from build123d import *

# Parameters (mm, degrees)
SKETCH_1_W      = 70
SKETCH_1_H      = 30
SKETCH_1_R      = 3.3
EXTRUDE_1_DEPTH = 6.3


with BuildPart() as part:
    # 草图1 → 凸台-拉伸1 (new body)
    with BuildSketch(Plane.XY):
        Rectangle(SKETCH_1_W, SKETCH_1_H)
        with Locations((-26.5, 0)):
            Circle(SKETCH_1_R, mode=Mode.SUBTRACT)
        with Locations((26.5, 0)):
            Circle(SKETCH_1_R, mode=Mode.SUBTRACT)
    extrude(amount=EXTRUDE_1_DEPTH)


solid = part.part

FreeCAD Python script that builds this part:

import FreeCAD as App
import Part
import Sketcher

V = App.Vector
Q = App.Units.Quantity

doc = App.newDocument("Part")
body = doc.addObject("PartDesign::Body", "Body")

sketch1 = body.newObject("Sketcher::SketchObject", "Sketch")
sketch1.AttachmentSupport = (doc.getObject("XY_Plane"), [""])
sketch1.MapMode = "FlatFace"
sketch1.addGeometry(Part.LineSegment(V(-35, 15, 0), V(-35, -15, 0)), False)
sketch1.addGeometry(Part.LineSegment(V(-35, -15, 0), V(35, -15, 0)), False)
sketch1.addGeometry(Part.LineSegment(V(35, -15, 0), V(35, 15, 0)), False)
sketch1.addGeometry(Part.LineSegment(V(35, 15, 0), V(-35, 15, 0)), False)
sketch1.addGeometry(Part.Circle(V(-26.5, 0, 0), V(0, 0, 1), 3.3), False)
sketch1.addGeometry(Part.Circle(V(26.5, 0, 0), V(0, 0, 1), 3.3), False)
sketch1.addConstraint(Sketcher.Constraint("Coincident", 0, 2, 1, 1))
sketch1.addConstraint(Sketcher.Constraint("Coincident", 1, 2, 2, 1))
sketch1.addConstraint(Sketcher.Constraint("Coincident", 2, 2, 3, 1))
sketch1.addConstraint(Sketcher.Constraint("Coincident", 3, 2, 0, 1))
sketch1.addConstraint(Sketcher.Constraint("Vertical", 0))
sketch1.addConstraint(Sketcher.Constraint("Horizontal", 1))
sketch1.addConstraint(Sketcher.Constraint("Vertical", 2))
sketch1.addConstraint(Sketcher.Constraint("Horizontal", 3))
sketch1.addConstraint(Sketcher.Constraint("Equal", 4, 5))
sketch1.addConstraint(Sketcher.Constraint("Symmetric", 4, 3, 5, 3, -1, 1))
sketch1.addConstraint(Sketcher.Constraint("Symmetric", 0, 2, 2, 2, -1, 1))
sketch1.addConstraint(Sketcher.Constraint("PointOnObject", 4, 3, -1))
sketch1.addConstraint(Sketcher.Constraint("Diameter", 4, Q("6.6 mm")))
sketch1.addConstraint(Sketcher.Constraint("DistanceX", 1, 1, 1, 2, Q("70 mm")))
sketch1.addConstraint(Sketcher.Constraint("DistanceY", 0, 2, 0, 1, Q("30 mm")))
sketch1.addConstraint(Sketcher.Constraint("DistanceX", 4, 3, 5, 3, Q("53 mm")))
pad1 = body.newObject("PartDesign::Pad", "Pad")
pad1.Profile = sketch1
pad1.Length = 6.3

doc.recompute()
